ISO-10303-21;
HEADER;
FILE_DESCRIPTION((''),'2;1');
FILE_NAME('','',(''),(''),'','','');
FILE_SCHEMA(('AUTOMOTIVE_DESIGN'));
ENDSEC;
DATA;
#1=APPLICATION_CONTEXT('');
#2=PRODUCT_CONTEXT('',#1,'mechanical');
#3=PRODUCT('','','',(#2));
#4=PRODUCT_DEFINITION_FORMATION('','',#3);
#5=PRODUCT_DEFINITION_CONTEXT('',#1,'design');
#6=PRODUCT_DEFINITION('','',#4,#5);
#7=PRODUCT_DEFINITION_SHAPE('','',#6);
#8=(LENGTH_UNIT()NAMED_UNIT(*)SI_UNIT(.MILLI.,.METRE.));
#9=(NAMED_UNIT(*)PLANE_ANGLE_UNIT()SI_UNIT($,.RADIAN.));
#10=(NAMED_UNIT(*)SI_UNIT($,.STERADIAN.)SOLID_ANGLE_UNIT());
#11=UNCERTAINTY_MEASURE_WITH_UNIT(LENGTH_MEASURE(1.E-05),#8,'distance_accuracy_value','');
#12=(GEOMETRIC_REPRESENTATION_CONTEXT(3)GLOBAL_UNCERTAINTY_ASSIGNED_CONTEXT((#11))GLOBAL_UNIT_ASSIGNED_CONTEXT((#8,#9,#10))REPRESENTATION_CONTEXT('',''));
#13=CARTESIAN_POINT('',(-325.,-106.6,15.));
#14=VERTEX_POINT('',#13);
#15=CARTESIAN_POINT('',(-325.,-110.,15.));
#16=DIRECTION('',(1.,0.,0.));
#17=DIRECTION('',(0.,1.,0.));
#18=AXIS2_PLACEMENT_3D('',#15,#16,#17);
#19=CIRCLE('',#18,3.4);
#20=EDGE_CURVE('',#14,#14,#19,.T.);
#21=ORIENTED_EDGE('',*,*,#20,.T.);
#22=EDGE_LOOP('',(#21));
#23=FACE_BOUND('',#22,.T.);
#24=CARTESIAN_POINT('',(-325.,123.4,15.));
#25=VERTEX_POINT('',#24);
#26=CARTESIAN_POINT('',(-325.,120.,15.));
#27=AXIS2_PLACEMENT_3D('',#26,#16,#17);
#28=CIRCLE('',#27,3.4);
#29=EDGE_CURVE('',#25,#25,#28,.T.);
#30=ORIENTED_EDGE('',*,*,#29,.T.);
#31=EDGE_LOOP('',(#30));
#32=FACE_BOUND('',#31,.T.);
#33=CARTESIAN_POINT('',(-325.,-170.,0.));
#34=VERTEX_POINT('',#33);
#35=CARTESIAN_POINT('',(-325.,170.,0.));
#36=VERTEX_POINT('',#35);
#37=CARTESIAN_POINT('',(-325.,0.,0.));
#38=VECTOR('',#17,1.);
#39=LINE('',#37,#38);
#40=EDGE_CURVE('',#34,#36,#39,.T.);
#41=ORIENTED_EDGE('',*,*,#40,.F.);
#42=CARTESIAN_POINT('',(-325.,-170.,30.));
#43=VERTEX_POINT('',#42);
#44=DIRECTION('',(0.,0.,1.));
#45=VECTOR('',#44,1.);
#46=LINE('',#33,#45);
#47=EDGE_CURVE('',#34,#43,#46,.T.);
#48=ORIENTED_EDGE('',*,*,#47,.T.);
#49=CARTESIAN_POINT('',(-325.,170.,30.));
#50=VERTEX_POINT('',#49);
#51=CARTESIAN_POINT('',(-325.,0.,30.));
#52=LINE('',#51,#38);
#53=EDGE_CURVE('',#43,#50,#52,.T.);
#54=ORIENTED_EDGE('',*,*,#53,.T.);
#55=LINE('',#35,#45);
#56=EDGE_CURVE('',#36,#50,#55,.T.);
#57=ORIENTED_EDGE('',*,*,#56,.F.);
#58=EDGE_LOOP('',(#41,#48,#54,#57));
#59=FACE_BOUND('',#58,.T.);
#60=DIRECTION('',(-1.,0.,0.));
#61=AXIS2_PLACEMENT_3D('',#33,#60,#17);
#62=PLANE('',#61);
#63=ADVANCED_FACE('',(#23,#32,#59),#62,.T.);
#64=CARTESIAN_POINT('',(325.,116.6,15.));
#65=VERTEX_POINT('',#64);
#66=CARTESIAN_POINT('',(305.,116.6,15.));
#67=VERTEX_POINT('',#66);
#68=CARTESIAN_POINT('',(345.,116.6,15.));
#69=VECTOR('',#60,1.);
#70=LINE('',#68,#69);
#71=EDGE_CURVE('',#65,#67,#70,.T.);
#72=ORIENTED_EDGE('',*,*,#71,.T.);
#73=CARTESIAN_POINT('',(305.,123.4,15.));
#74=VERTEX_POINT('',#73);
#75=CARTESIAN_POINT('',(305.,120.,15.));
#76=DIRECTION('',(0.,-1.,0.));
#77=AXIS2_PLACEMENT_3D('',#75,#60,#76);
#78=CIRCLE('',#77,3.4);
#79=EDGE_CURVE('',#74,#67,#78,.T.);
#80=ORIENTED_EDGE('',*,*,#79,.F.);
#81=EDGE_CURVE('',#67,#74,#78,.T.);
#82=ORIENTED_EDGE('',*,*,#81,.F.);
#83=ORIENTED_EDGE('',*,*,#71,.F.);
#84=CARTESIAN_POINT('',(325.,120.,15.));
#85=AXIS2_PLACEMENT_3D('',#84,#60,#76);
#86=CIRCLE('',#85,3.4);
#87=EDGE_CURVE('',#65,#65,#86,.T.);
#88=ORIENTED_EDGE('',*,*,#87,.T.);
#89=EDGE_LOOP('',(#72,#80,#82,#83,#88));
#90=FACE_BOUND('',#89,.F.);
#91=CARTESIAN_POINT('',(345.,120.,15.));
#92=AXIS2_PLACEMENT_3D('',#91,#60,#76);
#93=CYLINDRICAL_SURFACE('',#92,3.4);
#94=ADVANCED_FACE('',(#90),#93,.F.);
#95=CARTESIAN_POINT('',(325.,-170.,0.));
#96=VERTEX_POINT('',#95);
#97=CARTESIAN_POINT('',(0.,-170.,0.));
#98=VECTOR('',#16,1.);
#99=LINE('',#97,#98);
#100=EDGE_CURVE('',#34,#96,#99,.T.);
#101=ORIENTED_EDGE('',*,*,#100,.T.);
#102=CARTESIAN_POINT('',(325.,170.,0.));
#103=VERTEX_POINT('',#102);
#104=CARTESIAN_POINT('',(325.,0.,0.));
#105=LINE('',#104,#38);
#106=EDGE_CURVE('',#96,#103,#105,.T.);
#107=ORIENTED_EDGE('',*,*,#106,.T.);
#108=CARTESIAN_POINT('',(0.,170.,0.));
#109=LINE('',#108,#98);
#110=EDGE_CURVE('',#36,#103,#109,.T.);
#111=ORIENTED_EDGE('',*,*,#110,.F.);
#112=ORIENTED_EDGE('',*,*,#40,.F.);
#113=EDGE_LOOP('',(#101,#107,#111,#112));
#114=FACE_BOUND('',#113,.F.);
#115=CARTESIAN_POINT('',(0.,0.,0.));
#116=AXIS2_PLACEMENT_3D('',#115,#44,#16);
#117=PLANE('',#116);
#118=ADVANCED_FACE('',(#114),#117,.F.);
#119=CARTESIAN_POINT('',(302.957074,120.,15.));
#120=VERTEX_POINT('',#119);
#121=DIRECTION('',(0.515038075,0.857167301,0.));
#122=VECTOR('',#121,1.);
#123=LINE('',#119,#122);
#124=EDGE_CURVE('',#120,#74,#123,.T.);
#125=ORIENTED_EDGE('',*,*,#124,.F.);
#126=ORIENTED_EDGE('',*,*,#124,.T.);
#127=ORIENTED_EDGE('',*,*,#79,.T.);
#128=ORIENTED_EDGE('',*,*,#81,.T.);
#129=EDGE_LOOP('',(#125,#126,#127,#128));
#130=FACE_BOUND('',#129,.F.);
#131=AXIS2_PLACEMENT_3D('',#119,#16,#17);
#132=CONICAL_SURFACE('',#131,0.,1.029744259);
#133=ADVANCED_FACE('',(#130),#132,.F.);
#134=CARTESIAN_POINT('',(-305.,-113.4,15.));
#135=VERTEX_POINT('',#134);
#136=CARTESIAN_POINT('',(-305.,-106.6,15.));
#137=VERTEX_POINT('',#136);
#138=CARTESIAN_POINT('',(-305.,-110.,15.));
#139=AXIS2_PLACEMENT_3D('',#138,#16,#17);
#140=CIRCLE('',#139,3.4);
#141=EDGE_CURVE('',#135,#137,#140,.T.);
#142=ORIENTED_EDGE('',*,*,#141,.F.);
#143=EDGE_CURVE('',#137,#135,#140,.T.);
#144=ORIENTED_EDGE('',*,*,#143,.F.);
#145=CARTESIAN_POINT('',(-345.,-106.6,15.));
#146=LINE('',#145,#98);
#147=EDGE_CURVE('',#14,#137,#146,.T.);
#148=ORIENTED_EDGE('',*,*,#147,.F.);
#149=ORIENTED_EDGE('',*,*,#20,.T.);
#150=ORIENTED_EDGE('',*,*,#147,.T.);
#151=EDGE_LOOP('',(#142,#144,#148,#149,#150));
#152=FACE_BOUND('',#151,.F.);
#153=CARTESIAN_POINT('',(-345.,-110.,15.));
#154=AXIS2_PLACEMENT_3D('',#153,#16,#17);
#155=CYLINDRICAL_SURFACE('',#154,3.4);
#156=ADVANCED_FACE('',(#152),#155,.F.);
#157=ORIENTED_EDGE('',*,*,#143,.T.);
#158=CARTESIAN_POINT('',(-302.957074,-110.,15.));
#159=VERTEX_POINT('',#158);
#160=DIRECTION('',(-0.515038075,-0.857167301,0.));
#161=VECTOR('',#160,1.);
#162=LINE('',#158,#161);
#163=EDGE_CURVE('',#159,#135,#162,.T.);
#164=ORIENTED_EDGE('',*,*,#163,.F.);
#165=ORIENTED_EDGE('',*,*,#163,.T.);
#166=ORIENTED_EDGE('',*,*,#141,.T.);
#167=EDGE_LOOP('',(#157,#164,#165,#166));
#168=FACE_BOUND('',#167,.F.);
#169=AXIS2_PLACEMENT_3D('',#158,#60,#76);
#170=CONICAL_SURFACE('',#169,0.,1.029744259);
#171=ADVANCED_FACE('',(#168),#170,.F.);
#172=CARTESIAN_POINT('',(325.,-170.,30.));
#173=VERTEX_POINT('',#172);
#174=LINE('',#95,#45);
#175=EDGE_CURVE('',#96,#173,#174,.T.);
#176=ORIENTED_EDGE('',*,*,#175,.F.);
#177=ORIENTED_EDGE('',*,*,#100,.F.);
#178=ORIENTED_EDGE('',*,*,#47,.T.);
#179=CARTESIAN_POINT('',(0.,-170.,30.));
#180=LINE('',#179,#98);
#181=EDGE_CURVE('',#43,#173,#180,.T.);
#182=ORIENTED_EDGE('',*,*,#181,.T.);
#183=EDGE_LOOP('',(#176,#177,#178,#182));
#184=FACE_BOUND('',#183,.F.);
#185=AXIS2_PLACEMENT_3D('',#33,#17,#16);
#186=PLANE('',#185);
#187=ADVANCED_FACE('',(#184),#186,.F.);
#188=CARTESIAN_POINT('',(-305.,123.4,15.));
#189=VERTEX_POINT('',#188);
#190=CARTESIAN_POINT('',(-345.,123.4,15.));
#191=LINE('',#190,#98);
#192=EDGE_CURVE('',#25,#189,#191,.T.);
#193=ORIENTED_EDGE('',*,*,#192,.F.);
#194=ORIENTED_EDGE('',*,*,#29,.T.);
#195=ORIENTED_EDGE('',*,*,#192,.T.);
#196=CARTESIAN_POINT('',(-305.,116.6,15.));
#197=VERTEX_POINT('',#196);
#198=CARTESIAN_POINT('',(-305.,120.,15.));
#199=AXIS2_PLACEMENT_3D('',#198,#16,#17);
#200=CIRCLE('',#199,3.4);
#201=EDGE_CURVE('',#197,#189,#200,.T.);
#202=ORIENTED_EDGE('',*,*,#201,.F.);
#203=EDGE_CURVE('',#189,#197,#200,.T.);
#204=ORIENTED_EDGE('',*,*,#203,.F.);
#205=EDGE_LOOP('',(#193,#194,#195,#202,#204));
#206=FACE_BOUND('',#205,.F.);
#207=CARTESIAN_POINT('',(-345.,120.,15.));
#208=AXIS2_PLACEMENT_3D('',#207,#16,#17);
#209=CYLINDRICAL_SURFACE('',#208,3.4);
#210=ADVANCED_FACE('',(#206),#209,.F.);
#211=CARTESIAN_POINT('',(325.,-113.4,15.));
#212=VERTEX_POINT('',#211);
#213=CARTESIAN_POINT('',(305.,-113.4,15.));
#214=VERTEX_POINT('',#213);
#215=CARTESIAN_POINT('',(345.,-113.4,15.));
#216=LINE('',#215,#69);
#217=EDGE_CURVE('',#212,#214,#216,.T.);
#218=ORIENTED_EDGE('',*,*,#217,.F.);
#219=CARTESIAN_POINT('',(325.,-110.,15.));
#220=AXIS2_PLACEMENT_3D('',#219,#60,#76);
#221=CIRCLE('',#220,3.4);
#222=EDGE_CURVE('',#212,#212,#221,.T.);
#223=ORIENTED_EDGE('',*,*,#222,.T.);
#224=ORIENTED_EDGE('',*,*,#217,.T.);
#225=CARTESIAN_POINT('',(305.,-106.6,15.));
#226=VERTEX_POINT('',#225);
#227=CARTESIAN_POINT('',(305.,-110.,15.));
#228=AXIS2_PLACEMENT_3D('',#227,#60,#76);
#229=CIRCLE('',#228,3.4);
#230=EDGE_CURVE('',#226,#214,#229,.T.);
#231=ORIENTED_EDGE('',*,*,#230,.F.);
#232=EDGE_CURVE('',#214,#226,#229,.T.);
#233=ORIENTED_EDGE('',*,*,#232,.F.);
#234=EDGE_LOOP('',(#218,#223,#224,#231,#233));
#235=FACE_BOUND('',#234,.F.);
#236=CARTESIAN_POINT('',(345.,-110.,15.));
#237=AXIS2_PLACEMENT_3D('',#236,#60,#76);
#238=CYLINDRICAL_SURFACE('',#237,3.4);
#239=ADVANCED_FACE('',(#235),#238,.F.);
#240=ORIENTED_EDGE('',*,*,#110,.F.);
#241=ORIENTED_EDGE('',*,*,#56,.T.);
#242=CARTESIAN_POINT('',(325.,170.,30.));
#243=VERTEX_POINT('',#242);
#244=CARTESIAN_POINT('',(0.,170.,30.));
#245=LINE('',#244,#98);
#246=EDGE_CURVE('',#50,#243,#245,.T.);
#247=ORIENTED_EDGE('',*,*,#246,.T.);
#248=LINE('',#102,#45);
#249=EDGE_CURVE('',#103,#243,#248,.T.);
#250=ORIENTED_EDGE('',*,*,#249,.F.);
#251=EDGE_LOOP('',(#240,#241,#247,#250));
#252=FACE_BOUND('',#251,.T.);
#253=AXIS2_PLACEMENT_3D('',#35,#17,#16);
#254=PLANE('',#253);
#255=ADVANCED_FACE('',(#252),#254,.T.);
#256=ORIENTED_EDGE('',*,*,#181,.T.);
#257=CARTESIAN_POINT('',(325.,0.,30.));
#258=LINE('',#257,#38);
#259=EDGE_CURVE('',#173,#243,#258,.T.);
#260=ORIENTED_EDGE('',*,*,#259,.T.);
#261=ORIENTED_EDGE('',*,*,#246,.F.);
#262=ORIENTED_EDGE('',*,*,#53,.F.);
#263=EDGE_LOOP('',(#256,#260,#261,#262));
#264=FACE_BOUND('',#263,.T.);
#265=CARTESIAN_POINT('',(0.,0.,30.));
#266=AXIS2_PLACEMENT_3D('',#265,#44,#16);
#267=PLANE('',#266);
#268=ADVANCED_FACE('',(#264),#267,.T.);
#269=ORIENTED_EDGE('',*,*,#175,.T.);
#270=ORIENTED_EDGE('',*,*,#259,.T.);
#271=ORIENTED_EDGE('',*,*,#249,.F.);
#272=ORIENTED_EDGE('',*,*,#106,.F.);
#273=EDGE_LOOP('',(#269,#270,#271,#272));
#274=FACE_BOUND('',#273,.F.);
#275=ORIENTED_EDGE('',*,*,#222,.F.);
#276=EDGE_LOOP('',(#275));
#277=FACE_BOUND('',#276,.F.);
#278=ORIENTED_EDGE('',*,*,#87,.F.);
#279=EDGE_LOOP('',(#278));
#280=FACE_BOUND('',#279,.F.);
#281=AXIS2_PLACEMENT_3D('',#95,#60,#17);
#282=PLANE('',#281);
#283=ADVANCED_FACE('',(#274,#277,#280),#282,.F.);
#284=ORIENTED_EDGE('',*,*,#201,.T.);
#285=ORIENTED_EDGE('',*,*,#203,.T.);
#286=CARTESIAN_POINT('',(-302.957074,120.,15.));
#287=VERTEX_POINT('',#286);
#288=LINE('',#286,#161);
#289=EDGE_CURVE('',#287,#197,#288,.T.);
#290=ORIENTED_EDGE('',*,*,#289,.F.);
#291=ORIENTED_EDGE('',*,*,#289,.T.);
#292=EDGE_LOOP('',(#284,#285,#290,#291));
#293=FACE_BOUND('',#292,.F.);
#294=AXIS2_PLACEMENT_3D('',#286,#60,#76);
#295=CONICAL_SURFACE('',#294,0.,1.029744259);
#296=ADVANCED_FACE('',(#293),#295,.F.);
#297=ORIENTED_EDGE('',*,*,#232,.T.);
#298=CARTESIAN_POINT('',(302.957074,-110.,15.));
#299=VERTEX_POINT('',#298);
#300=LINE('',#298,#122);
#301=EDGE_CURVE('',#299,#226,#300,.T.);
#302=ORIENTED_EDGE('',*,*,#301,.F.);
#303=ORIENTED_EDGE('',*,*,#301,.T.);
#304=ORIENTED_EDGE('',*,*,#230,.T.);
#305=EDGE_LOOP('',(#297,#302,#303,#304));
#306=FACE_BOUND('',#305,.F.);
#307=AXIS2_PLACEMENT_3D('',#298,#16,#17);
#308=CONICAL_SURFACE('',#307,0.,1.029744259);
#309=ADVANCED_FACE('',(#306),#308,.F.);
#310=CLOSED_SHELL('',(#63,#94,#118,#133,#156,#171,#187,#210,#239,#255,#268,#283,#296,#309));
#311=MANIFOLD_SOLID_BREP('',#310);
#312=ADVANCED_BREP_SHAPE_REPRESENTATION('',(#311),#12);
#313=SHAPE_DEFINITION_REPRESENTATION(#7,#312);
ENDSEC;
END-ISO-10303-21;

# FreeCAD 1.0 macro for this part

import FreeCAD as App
import Part
import Sketcher
from FreeCAD import Vector
Q = App.Units.Quantity

doc = App.newDocument("Part")
body = doc.addObject("PartDesign::Body", "Body")

sketch1 = doc.addObject("Sketcher::SketchObject", "Sketch")
body.addObject(sketch1)
sketch1.AttachmentSupport = (doc.XY_Plane, [""])
sketch1.MapMode = "FlatFace"
sketch1.addGeometry([
    Part.LineSegment(Vector(-325, 170, 0), Vector(-325, -170, 0)),
    Part.LineSegment(Vector(-325, -170, 0), Vector(325, -170, 0)),
    Part.LineSegment(Vector(325, -170, 0), Vector(325, 170, 0)),
    Part.LineSegment(Vector(325, 170, 0), Vector(-325, 170, 0)),
], False)
sketch1.addConstraint([
    Sketcher.Constraint("Coincident", 0, 2, 1, 1),
    Sketcher.Constraint("Coincident", 1, 2, 2, 1),
    Sketcher.Constraint("Coincident", 2, 2, 3, 1),
    Sketcher.Constraint("Coincident", 3, 2, 0, 1),
    Sketcher.Constraint("Vertical", 0),
    Sketcher.Constraint("Horizontal", 1),
    Sketcher.Constraint("Vertical", 2),
    Sketcher.Constraint("Horizontal", 3),
    Sketcher.Constraint("Symmetric", 0, 2, 2, 2, -1, 1),
    Sketcher.Constraint("DistanceX", 1, 1, 1, 2, Q("650 mm")),
    Sketcher.Constraint("DistanceY", 0, 2, 0, 1, Q("340 mm")),
])
pad1 = doc.addObject("PartDesign::Pad", "Pad")
body.addObject(pad1)
pad1.Profile = sketch1
pad1.Length = 30

sketch2 = doc.addObject("Sketcher::SketchObject", "Sketch001")
body.addObject(sketch2)
sketch2.AttachmentSupport = (doc.YZ_Plane, [""])
sketch2.MapMode = "FlatFace"
sketch2.AttachmentOffset = App.Placement(Vector(0, 0, 325), App.Rotation())
sketch2.addGeometry([
    Part.Circle(Vector(-110, 15, 0), Vector(0, 0, 1), 3.4),
    Part.Circle(Vector(120, 15, 0), Vector(0, 0, 1), 3.4),
], False)
sketch2.addConstraint([
    Sketcher.Constraint("Equal", 0, 1),
    Sketcher.Constraint("Horizontal", 0, 3, 1, 3),
    Sketcher.Constraint("Diameter", 0, Q("6.8 mm")),
    Sketcher.Constraint("DistanceX", 0, 3, -1, 1, Q("110 mm")),
    Sketcher.Constraint("DistanceY", -1, 1, 0, 3, Q("15 mm")),
    Sketcher.Constraint("DistanceX", -1, 1, 1, 3, Q("120 mm")),
])
doc.recompute()
hole = doc.addObject("PartDesign::Hole", "Hole")
body.addObject(hole)
hole.Profile = sketch2
hole.ThreadType = "None"
hole.Diameter = 6.8
hole.DepthType = "Dimension"
hole.Depth = 20
hole.DrillPoint = "Angled"
hole.DrillPointAngle = 118

sketch3 = doc.addObject("Sketcher::SketchObject", "Sketch002")
body.addObject(sketch3)
sketch3.AttachmentSupport = (doc.YZ_Plane, [""])
sketch3.MapMode = "FlatFace"
sketch3.AttachmentOffset = App.Placement(Vector(0, 0, -325), App.Rotation())
sketch3.addGeometry([
    Part.Circle(Vector(120, 15, 0), Vector(0, 0, 1), 3.4),
    Part.Circle(Vector(-110, 15, 0), Vector(0, 0, 1), 3.4),
], False)
sketch3.addConstraint([
    Sketcher.Constraint("Equal", 0, 1),
    Sketcher.Constraint("Horizontal", 0, 3, 1, 3),
    Sketcher.Constraint("Diameter", 0, Q("6.8 mm")),
    Sketcher.Constraint("DistanceX", -1, 1, 0, 3, Q("120 mm")),
    Sketcher.Constraint("DistanceY", -1, 1, 0, 3, Q("15 mm")),
    Sketcher.Constraint("DistanceX", 1, 3, -1, 1, Q("110 mm")),
])
doc.recompute()
hole2 = doc.addObject("PartDesign::Hole", "Hole001")
body.addObject(hole2)
hole2.Profile = sketch3
hole2.ThreadType = "None"
hole2.Diameter = 6.8
hole2.DepthType = "Dimension"
hole2.Depth = 20
hole2.DrillPoint = "Angled"
hole2.DrillPointAngle = 118
hole2.Reversed = True

doc.recompute()
